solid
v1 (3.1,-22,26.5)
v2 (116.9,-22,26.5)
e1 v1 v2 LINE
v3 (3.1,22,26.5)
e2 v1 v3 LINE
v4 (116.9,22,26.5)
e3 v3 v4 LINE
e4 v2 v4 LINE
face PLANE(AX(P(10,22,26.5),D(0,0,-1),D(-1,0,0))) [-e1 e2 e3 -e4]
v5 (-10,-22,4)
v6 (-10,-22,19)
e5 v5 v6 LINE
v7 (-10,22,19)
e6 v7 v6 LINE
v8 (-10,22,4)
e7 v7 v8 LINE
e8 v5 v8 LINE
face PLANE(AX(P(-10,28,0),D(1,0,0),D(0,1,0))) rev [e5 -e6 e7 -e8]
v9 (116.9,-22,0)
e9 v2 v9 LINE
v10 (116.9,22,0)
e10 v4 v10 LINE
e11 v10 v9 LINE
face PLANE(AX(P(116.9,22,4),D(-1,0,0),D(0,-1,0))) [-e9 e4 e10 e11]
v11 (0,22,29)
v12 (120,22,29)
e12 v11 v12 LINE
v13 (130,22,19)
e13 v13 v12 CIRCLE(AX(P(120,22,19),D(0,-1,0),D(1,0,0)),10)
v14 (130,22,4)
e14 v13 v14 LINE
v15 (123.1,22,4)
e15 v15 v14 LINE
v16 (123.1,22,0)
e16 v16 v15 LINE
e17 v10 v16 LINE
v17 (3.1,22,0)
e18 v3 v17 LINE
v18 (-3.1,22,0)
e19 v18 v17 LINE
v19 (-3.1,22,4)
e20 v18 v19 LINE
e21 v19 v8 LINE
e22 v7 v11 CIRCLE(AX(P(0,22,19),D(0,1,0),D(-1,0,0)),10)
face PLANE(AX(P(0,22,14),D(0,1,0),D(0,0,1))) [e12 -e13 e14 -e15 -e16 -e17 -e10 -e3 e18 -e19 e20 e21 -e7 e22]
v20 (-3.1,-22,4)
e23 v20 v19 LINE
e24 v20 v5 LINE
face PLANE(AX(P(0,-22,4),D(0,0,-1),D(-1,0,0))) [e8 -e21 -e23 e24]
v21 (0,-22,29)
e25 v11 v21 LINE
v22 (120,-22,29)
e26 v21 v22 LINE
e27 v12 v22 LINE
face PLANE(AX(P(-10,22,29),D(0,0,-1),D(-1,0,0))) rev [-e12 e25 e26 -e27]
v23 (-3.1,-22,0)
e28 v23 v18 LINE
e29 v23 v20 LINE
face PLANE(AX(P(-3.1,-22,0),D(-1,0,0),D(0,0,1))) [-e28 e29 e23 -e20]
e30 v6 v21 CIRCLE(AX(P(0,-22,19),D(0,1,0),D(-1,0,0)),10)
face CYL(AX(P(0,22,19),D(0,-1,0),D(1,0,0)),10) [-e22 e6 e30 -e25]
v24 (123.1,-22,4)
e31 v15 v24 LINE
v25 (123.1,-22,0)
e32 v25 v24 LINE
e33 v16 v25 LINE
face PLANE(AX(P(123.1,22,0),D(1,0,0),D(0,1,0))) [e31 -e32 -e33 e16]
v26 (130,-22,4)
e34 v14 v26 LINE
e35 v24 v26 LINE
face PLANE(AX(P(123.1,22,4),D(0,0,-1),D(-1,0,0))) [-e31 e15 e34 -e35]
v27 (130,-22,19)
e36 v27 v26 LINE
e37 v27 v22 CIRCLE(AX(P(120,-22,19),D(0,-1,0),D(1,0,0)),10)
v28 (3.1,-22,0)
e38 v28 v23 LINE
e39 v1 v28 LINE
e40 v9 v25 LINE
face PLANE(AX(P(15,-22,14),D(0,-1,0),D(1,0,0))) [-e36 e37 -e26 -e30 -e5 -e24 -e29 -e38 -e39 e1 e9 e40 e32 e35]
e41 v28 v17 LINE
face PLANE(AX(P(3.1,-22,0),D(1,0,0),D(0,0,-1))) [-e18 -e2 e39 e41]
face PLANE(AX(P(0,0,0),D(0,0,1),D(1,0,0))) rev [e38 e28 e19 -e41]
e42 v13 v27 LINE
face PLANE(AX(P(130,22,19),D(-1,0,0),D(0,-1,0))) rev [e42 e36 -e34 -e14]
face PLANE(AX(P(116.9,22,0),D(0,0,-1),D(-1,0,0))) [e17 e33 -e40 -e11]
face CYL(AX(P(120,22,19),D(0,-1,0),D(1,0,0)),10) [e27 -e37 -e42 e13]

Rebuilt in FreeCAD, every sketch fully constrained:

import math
import FreeCAD as App
import Part
import Sketcher
from FreeCAD import Vector

doc = App.newDocument("Part")
body = doc.addObject("PartDesign::Body", "Body")

sketch1 = doc.addObject("Sketcher::SketchObject", "Sketch")
body.addObject(sketch1)
sketch1.AttachmentSupport = (doc.XY_Plane, [""])
sketch1.MapMode = "FlatFace"
sketch1.addGeometry([
    Part.LineSegment(Vector(-15, 22, 0), Vector(-15, -22, 0)),
    Part.LineSegment(Vector(-15, -22, 0), Vector(15, -22, 0)),
    Part.LineSegment(Vector(15, -22, 0), Vector(15, 22, 0)),
    Part.LineSegment(Vector(15, 22, 0), Vector(-15, 22, 0)),
], False)
sketch1.addConstraint([
    Sketcher.Constraint("Coincident", 0, 2, 1, 1),
    Sketcher.Constraint("Coincident", 1, 2, 2, 1),
    Sketcher.Constraint("Coincident", 2, 2, 3, 1),
    Sketcher.Constraint("Coincident", 3, 2, 0, 1),
    Sketcher.Constraint("Vertical", 0),
    Sketcher.Constraint("Horizontal", 1),
    Sketcher.Constraint("Vertical", 2),
    Sketcher.Constraint("Horizontal", 3),
    Sketcher.Constraint("Symmetric", 0, 2, 2, 2, -1, 1),
    Sketcher.Constraint("DistanceX", 1, 1, 1, 2, 30.0),
    Sketcher.Constraint("DistanceY", 0, 2, 0, 1, 44.0),
])
pad1 = doc.addObject("PartDesign::Pad", "Pad")
body.addObject(pad1)
pad1.Profile = sketch1
pad1.Length = 14

sketch2 = doc.addObject("Sketcher::SketchObject", "Sketch001")
body.addObject(sketch2)
sketch2.AttachmentSupport = (doc.XZ_Plane, [""])
sketch2.MapMode = "FlatFace"
sketch2.AttachmentOffset = App.Placement(Vector(0, 0, -22), App.Rotation())
sketch2.addGeometry([
    Part.LineSegment(Vector(-15, 0, 0), Vector(-15, 14, 0)),
    Part.LineSegment(Vector(-15, 14, 0), Vector(-10, 4, 0)),
    Part.LineSegment(Vector(-10, 4, 0), Vector(-3.1, 4, 0)),
    Part.LineSegment(Vector(-3.1, 4, 0), Vector(-3.1, 0, 0)),
    Part.LineSegment(Vector(-3.1, 0, 0), Vector(-15, 0, 0)),
    Part.LineSegment(Vector(3.1, 4, 0), Vector(10, 4, 0)),
    Part.LineSegment(Vector(10, 4, 0), Vector(15, 14, 0)),
    Part.LineSegment(Vector(15, 14, 0), Vector(15, 0, 0)),
    Part.LineSegment(Vector(15, 0, 0), Vector(3.1, 0, 0)),
    Part.LineSegment(Vector(3.1, 0, 0), Vector(3.1, 4, 0)),
], False)
sketch2.addConstraint([
    Sketcher.Constraint("Coincident", 0, 2, 1, 1),
    Sketcher.Constraint("Coincident", 1, 2, 2, 1),
    Sketcher.Constraint("Coincident", 2, 2, 3, 1),
    Sketcher.Constraint("Coincident", 3, 2, 4, 1),
    Sketcher.Constraint("Coincident", 4, 2, 0, 1),
    Sketcher.Constraint("Coincident", 5, 2, 6, 1),
    Sketcher.Constraint("Coincident", 6, 2, 7, 1),
    Sketcher.Constraint("Coincident", 7, 2, 8, 1),
    Sketcher.Constraint("Coincident", 8, 2, 9, 1),
    Sketcher.Constraint("Coincident", 9, 2, 5, 1),
    Sketcher.Constraint("Vertical", 0),
    Sketcher.Constraint("Horizontal", 2),
    Sketcher.Constraint("Vertical", 3),
    Sketcher.Constraint("Horizontal", 4),
    Sketcher.Constraint("Horizontal", 5),
    Sketcher.Constraint("Vertical", 7),
    Sketcher.Constraint("Horizontal", 8),
    Sketcher.Constraint("Vertical", 9),
    Sketcher.Constraint("Symmetric", 4, 2, 7, 2, -1, 1),
    Sketcher.Constraint("Symmetric", 1, 2, 5, 2, -2),
    Sketcher.Constraint("Symmetric", 3, 2, 8, 2, -2),
    Sketcher.Constraint("Horizontal", 0, 2, 6, 2),
    Sketcher.Constraint("DistanceY", 0, 1, 0, 2, 14.0),
    Sketcher.Constraint("DistanceY", 3, 2, 3, 1, 4.0),
    Sketcher.Constraint("DistanceX", 2, 1, 2, 2, 6.9),
    Sketcher.Constraint("DistanceX", 4, 2, 4, 1, 11.9),
    Sketcher.Constraint("DistanceX", 0, 2, -1, 1, 15.0),
])
pocket1 = doc.addObject("PartDesign::Pocket", "Pocket")
body.addObject(pocket1)
pocket1.Profile = sketch2
pocket1.Length = 44
pocket1.Reversed = True

sketch3 = doc.addObject("Sketcher::SketchObject", "Sketch002")
body.addObject(sketch3)
sketch3.AttachmentSupport = (doc.XY_Plane, [""])
sketch3.MapMode = "FlatFace"
sketch3.addGeometry([
    Part.LineSegment(Vector(3, 3, 0), Vector(3, -3, 0)),
    Part.LineSegment(Vector(3, -3, 0), Vector(-3, -3, 0)),
    Part.LineSegment(Vector(-3, -3, 0), Vector(-3, 3, 0)),
    Part.LineSegment(Vector(-3, 3, 0), Vector(3, 3, 0)),
], False)
sketch3.addConstraint([
    Sketcher.Constraint("Coincident", 0, 2, 1, 1),
    Sketcher.Constraint("Coincident", 1, 2, 2, 1),
    Sketcher.Constraint("Coincident", 2, 2, 3, 1),
    Sketcher.Constraint("Coincident", 3, 2, 0, 1),
    Sketcher.Constraint("Vertical", 0),
    Sketcher.Constraint("Horizontal", 1),
    Sketcher.Constraint("Vertical", 2),
    Sketcher.Constraint("Horizontal", 3),
    Sketcher.Constraint("Symmetric", 0, 2, 2, 2, -1, 1),
    Sketcher.Constraint("Equal", 3, 0),
    Sketcher.Constraint("DistanceX", 1, 2, 1, 1, 6.2),
])
pocket2 = doc.addObject("PartDesign::Pocket", "Pocket001")
body.addObject(pocket2)
pocket2.Profile = sketch3
pocket2.Length = 4
pocket2.Reversed = True

sketch4 = doc.addObject("Sketcher::SketchObject", "Sketch003")
body.addObject(sketch4)
sketch4.AttachmentSupport = (doc.XY_Plane, [""])
sketch4.MapMode = "FlatFace"
sketch4.AttachmentOffset = App.Placement(Vector(0, 0, 14), App.Rotation())
sketch4.addGeometry(Part.Circle(Vector(0, 0, 0), Vector(0, 0, 1), 4), False)
sketch4.addConstraint([
    Sketcher.Constraint("Coincident", 0, 3, -1, 1),
    Sketcher.Constraint("Diameter", 0, 8.0),
])
pocket3 = doc.addObject("PartDesign::Pocket", "Pocket002")
body.addObject(pocket3)
pocket3.Profile = sketch4
pocket3.Length = 5

sketch5 = doc.addObject("Sketcher::SketchObject", "Sketch004")
body.addObject(sketch5)
sketch5.AttachmentSupport = (doc.XY_Plane, [""])
sketch5.MapMode = "FlatFace"
sketch5.AttachmentOffset = App.Placement(Vector(0, 0, 9), App.Rotation())
sketch5.addGeometry(Part.Circle(Vector(0, 0, 0), Vector(0, 0, 1), 2.6), False)
sketch5.addConstraint([
    Sketcher.Constraint("Coincident", 0, 3, -1, 1),
    Sketcher.Constraint("Diameter", 0, 5.2),
])
pocket4 = doc.addObject("PartDesign::Pocket", "Pocket003")
body.addObject(pocket4)
pocket4.Profile = sketch5
pocket4.Length = 5

sketch6 = doc.addObject("Sketcher::SketchObject", "Sketch005")
body.addObject(sketch6)
sketch6.AttachmentSupport = (doc.XY_Plane, [""])
sketch6.MapMode = "FlatFace"
sketch6.AttachmentOffset = App.Placement(Vector(0, 0, 14), App.Rotation())
sketch6.addGeometry(Part.Circle(Vector(0, 0, 0), Vector(0, 0, 1), 4), False)
sketch6.addConstraint([
    Sketcher.Constraint("Coincident", 0, 3, -1, 1),
    Sketcher.Constraint("Diameter", 0, 8.0),
])
pad2 = doc.addObject("PartDesign::Pad", "Pad001")
body.addObject(pad2)
pad2.Profile = sketch6
pad2.Length = 10
pad2.Reversed = True

sketch7 = doc.addObject("Sketcher::SketchObject", "Sketch006")
body.addObject(sketch7)
sketch7.AttachmentSupport = (doc.XZ_Plane, [""])
sketch7.MapMode = "FlatFace"
sketch7.AttachmentOffset = App.Placement(Vector(0, 0, 22), App.Rotation())
sketch7.addGeometry([
    Part.LineSegment(Vector(3.1, 0, 0), Vector(3.1, 4, 0)),
    Part.LineSegment(Vector(3.1, 4, 0), Vector(-3.1, 4, 0)),
    Part.LineSegment(Vector(-3.1, 4, 0), Vector(-3.1, 0, 0)),
    Part.LineSegment(Vector(-3.1, 0, 0), Vector(3.1, 0, 0)),
], False)
sketch7.addConstraint([
    Sketcher.Constraint("Coincident", 0, 2, 1, 1),
    Sketcher.Constraint("Coincident", 1, 2, 2, 1),
    Sketcher.Constraint("Coincident", 2, 2, 3, 1),
    Sketcher.Constraint("Coincident", 3, 2, 0, 1),
    Sketcher.Constraint("Vertical", 0),
    Sketcher.Constraint("Horizontal", 1),
    Sketcher.Constraint("Vertical", 2),
    Sketcher.Constraint("Horizontal", 3),
    Sketcher.Constraint("Symmetric", 2, 2, 3, 2, -1, 1),
    Sketcher.Constraint("DistanceY", 0, 1, 0, 2, 4.0),
    Sketcher.Constraint("DistanceX", 1, 2, 1, 1, 6.2),
])
pad3 = doc.addObject("PartDesign::Pad", "Pad002")
body.addObject(pad3)
pad3.Profile = sketch7
pad3.Length = 40
pad3.Reversed = True

sketch8 = doc.addObject("Sketcher::SketchObject", "Sketch007")
body.addObject(sketch8)
sketch8.AttachmentSupport = (doc.XZ_Plane, [""])
sketch8.MapMode = "FlatFace"
sketch8.AttachmentOffset = App.Placement(Vector(0, 0, 22), App.Rotation())
sketch8.addGeometry([
    Part.LineSegment(Vector(-15, 14, 0), Vector(-10, 4, 0)),
    Part.LineSegment(Vector(-10, 4, 0), Vector(-10, 14, 0)),
    Part.LineSegment(Vector(-10, 14, 0), Vector(-15, 14, 0)),
    Part.LineSegment(Vector(15, 14, 0), Vector(10, 14, 0)),
    Part.LineSegment(Vector(10, 14, 0), Vector(10, 4, 0)),
    Part.LineSegment(Vector(10, 4, 0), Vector(15, 14, 0)),
], False)
sketch8.addConstraint([
    Sketcher.Constraint("Coincident", 0, 2, 1, 1),
    Sketcher.Constraint("Coincident", 1, 2, 2, 1),
    Sketcher.Constraint("Coincident", 2, 2, 0, 1),
    Sketcher.Constraint("Coincident", 3, 2, 4, 1),
    Sketcher.Constraint("Coincident", 4, 2, 5, 1),
    Sketcher.Constraint("Coincident", 5, 2, 3, 1),
    Sketcher.Constraint("Vertical", 1),
    Sketcher.Constraint("Horizontal", 2),
    Sketcher.Constraint("Horizontal", 3),
    Sketcher.Constraint("Vertical", 4),
    Sketcher.Constraint("Symmetric", 1, 2, 3, 2, -2),
    Sketcher.Constraint("Horizontal", 0, 2, 4, 2),
    Sketcher.Constraint("Equal", 2, 3),
    Sketcher.Constraint("DistanceX", 2, 2, 2, 1, 5.0),
    Sketcher.Constraint("DistanceY", 1, 1, 1, 2, 10.0),
    Sketcher.Constraint("DistanceX", 0, 2, -1, 1, 10.0),
    Sketcher.Constraint("DistanceY", -1, 1, 0, 2, 4.0),
])
pocket5 = doc.addObject("PartDesign::Pocket", "Pocket004")
body.addObject(pocket5)
pocket5.Profile = sketch8
pocket5.Length = 50

sketch9 = doc.addObject("Sketcher::SketchObject", "Sketch008")
body.addObject(sketch9)
sketch9.AttachmentSupport = (doc.XZ_Plane, [""])
sketch9.MapMode = "FlatFace"
sketch9.AttachmentOffset = App.Placement(Vector(0, 0, 22), App.Rotation())
sketch9.addGeometry([
    Part.LineSegment(Vector(-10, 29, 0), Vector(-10, 4, 0)),
    Part.LineSegment(Vector(-10, 4, 0), Vector(10, 4, 0)),
    Part.LineSegment(Vector(10, 4, 0), Vector(10, 29, 0)),
    Part.LineSegment(Vector(10, 29, 0), Vector(-10, 29, 0)),
], False)
sketch9.addConstraint([
    Sketcher.Constraint("Coincident", 0, 2, 1, 1),
    Sketcher.Constraint("Coincident", 1, 2, 2, 1),
    Sketcher.Constraint("Coincident", 2, 2, 3, 1),
    Sketcher.Constraint("Coincident", 3, 2, 0, 1),
    Sketcher.Constraint("Vertical", 0),
    Sketcher.Constraint("Horizontal", 1),
    Sketcher.Constraint("Vertical", 2),
    Sketcher.Constraint("Horizontal", 3),
    Sketcher.Constraint("DistanceX", 1, 1, 1, 2, 20.0),
    Sketcher.Constraint("DistanceY", 0, 2, 0, 1, 25.0),
    Sketcher.Constraint("DistanceX", 0, 2, -1, 1, 10.0),
    Sketcher.Constraint("DistanceY", -1, 1, 0, 2, 4.0),
])
pad4 = doc.addObject("PartDesign::Pad", "Pad003")
body.addObject(pad4)
pad4.Profile = sketch9
pad4.Length = 44
pad4.Reversed = True

sketch10 = doc.addObject("Sketcher::SketchObject", "Sketch009")
body.addObject(sketch10)
sketch10.AttachmentSupport = (doc.XZ_Plane, [""])
sketch10.MapMode = "FlatFace"
sketch10.AttachmentOffset = App.Placement(Vector(0, 0, 22), App.Rotation())
sketch10.addGeometry([
    Part.LineSegment(Vector(-10, 29, 0), Vector(-10, 19, 0)),
    Part.ArcOfCircle(Part.Circle(Vector(0, 19, 0), Vector(0, 0, 1), 10), math.radians(90), math.radians(180)),
    Part.LineSegment(Vector(0, 29, 0), Vector(-10, 29, 0)),
], False)
sketch10.addConstraint([
    Sketcher.Constraint("Tangent", 0, 2, 1, 2),
    Sketcher.Constraint("Tangent", 1, 1, 2, 1),
    Sketcher.Constraint("Coincident", 2, 2, 0, 1),
    Sketcher.Constraint("Vertical", 0),
    Sketcher.Constraint("Horizontal", 2),
    Sketcher.Constraint("PointOnObject", 1, 3, -2),
    Sketcher.Constraint("Radius", 1, 10.0),
    Sketcher.Constraint("DistanceY", -1, 1, 1, 3, 19.0),
])
pocket6 = doc.addObject("PartDesign::Pocket", "Pocket005")
body.addObject(pocket6)
pocket6.Profile = sketch10
pocket6.Length = 44

sketch11 = doc.addObject("Sketcher::SketchObject", "Sketch010")
body.addObject(sketch11)
sketch11.AttachmentSupport = (doc.XZ_Plane, [""])
sketch11.MapMode = "FlatFace"
sketch11.AttachmentOffset = App.Placement(Vector(0, 0, 22), App.Rotation())
sketch11.addGeometry([
    Part.LineSegment(Vector(123.1, 0, 0), Vector(123.1, 4, 0)),
    Part.LineSegment(Vector(123.1, 4, 0), Vector(130, 4, 0)),
    Part.LineSegment(Vector(130, 4, 0), Vector(130, 19, 0)),
    Part.ArcOfCircle(Part.Circle(Vector(120, 19, 0), Vector(0, 0, 1), 10), math.radians(0), math.radians(90)),
    Part.LineSegment(Vector(120, 29, 0), Vector(10, 29, 0)),
    Part.LineSegment(Vector(10, 29, 0), Vector(10, 26.5, 0)),
    Part.LineSegment(Vector(10, 26.5, 0), Vector(110, 26.5, 0)),
    Part.LineSegment(Vector(110, 26.5, 0), Vector(110, 4, 0)),
    Part.LineSegment(Vector(110, 4, 0), Vector(116.9, 4, 0)),
    Part.LineSegment(Vector(116.9, 4, 0), Vector(116.9, 0, 0)),
    Part.LineSegment(Vector(116.9, 0, 0), Vector(123.1, 0, 0)),
], False)
sketch11.addConstraint([
    Sketcher.Constraint("Coincident", 0, 2, 1, 1),
    Sketcher.Constraint("Coincident", 1, 2, 2, 1),
    Sketcher.Constraint("Tangent", 2, 2, 3, 1),
    Sketcher.Constraint("Tangent", 3, 2, 4, 1),
    Sketcher.Constraint("Coincident", 4, 2, 5, 1),
    Sketcher.Constraint("Coincident", 5, 2, 6, 1),
    Sketcher.Constraint("Coincident", 6, 2, 7, 1),
    Sketcher.Constraint("Coincident", 7, 2, 8, 1),
    Sketcher.Constraint("Coincident", 8, 2, 9, 1),
    Sketcher.Constraint("Coincident", 9, 2, 10, 1),
    Sketcher.Constraint("Coincident", 10, 2, 0, 1),
    Sketcher.Constraint("Vertical", 0),
    Sketcher.Constraint("Horizontal", 1),
    Sketcher.Constraint("Vertical", 2),
    Sketcher.Constraint("Horizontal", 4),
    Sketcher.Constraint("Vertical", 5),
    Sketcher.Constraint("Horizontal", 6),
    Sketcher.Constraint("Vertical", 7),
    Sketcher.Constraint("Horizontal", 8),
    Sketcher.Constraint("Vertical", 9),
    Sketcher.Constraint("Horizontal", 10),
    Sketcher.Constraint("PointOnObject", 9, 2, -1),
    Sketcher.Constraint("Horizontal", 1, 2, 7, 2),
    Sketcher.Constraint("Equal", 1, 8),
    Sketcher.Constraint("Radius", 3, 10.0),
    Sketcher.Constraint("DistanceX", 4, 2, 4, 1, 110.0),
    Sketcher.Constraint("DistanceX", 6, 1, 6, 2, 100.0),
    Sketcher.Constraint("DistanceY", 0, 1, 0, 2, 4.0),
    Sketcher.Constraint("DistanceY", 2, 1, 2, 2, 15.0),
    Sketcher.Constraint("DistanceX", 1, 1, 1, 2, 6.9),
    Sketcher.Constraint("DistanceY", 5, 2, 5, 1, 2.5),
    Sketcher.Constraint("DistanceX", -1, 1, 3, 3, 120.0),
])
pad5 = doc.addObject("PartDesign::Pad", "Pad004")
body.addObject(pad5)
pad5.Profile = sketch11
pad5.Length = 44
pad5.Reversed = True

sketch12 = doc.addObject("Sketcher::SketchObject", "Sketch011")
body.addObject(sketch12)
sketch12.AttachmentSupport = (doc.XZ_Plane, [""])
sketch12.MapMode = "FlatFace"
sketch12.AttachmentOffset = App.Placement(Vector(0, 0, -22), App.Rotation())
sketch12.addGeometry([
    Part.LineSegment(Vector(3, 4, 0), Vector(3, 26, 0)),
    Part.LineSegment(Vector(3, 26, 0), Vector(10, 26, 0)),
    Part.LineSegment(Vector(10, 26, 0), Vector(10, 4, 0)),
    Part.LineSegment(Vector(10, 4, 0), Vector(3, 4, 0)),
    Part.LineSegment(Vector(110, 4, 0), Vector(110, 26, 0)),
    Part.LineSegment(Vector(110, 26, 0), Vector(117, 26, 0)),
    Part.LineSegment(Vector(117, 26, 0), Vector(117, 4, 0)),
    Part.LineSegment(Vector(117, 4, 0), Vector(110, 4, 0)),
], False)
sketch12.addConstraint([
    Sketcher.Constraint("Coincident", 0, 2, 1, 1),
    Sketcher.Constraint("Coincident", 1, 2, 2, 1),
    Sketcher.Constraint("Coincident", 2, 2, 3, 1),
    Sketcher.Constraint("Coincident", 3, 2, 0, 1),
    Sketcher.Constraint("Coincident", 4, 2, 5, 1),
    Sketcher.Constraint("Coincident", 5, 2, 6, 1),
    Sketcher.Constraint("Coincident", 6, 2, 7, 1),
    Sketcher.Constraint("Coincident", 7, 2, 4, 1),
    Sketcher.Constraint("Vertical", 0),
    Sketcher.Constraint("Horizontal", 1),
    Sketcher.Constraint("Vertical", 2),
    Sketcher.Constraint("Horizontal", 3),
    Sketcher.Constraint("Vertical", 4),
    Sketcher.Constraint("Horizontal", 5),
    Sketcher.Constraint("Vertical", 6),
    Sketcher.Constraint("Horizontal", 7),
    Sketcher.Constraint("Horizontal", 1, 2, 4, 2),
    Sketcher.Constraint("Horizontal", 3, 2, 6, 2),
    Sketcher.Constraint("Equal", 3, 5),
    Sketcher.Constraint("DistanceX", 1, 1, 1, 2, 6.9),
    Sketcher.Constraint("DistanceY", 0, 1, 0, 2, 22.5),
    Sketcher.Constraint("DistanceX", -1, 1, 1, 2, 10.0),
    Sketcher.Constraint("DistanceY", -1, 1, 2, 2, 4.0),
    Sketcher.Constraint("DistanceX", -1, 1, 4, 2, 110.0),
])
pocket7 = doc.addObject("PartDesign::Pocket", "Pocket006")
body.addObject(pocket7)
pocket7.Profile = sketch12
pocket7.Length = 50
pocket7.Reversed = True

doc.recompute()
